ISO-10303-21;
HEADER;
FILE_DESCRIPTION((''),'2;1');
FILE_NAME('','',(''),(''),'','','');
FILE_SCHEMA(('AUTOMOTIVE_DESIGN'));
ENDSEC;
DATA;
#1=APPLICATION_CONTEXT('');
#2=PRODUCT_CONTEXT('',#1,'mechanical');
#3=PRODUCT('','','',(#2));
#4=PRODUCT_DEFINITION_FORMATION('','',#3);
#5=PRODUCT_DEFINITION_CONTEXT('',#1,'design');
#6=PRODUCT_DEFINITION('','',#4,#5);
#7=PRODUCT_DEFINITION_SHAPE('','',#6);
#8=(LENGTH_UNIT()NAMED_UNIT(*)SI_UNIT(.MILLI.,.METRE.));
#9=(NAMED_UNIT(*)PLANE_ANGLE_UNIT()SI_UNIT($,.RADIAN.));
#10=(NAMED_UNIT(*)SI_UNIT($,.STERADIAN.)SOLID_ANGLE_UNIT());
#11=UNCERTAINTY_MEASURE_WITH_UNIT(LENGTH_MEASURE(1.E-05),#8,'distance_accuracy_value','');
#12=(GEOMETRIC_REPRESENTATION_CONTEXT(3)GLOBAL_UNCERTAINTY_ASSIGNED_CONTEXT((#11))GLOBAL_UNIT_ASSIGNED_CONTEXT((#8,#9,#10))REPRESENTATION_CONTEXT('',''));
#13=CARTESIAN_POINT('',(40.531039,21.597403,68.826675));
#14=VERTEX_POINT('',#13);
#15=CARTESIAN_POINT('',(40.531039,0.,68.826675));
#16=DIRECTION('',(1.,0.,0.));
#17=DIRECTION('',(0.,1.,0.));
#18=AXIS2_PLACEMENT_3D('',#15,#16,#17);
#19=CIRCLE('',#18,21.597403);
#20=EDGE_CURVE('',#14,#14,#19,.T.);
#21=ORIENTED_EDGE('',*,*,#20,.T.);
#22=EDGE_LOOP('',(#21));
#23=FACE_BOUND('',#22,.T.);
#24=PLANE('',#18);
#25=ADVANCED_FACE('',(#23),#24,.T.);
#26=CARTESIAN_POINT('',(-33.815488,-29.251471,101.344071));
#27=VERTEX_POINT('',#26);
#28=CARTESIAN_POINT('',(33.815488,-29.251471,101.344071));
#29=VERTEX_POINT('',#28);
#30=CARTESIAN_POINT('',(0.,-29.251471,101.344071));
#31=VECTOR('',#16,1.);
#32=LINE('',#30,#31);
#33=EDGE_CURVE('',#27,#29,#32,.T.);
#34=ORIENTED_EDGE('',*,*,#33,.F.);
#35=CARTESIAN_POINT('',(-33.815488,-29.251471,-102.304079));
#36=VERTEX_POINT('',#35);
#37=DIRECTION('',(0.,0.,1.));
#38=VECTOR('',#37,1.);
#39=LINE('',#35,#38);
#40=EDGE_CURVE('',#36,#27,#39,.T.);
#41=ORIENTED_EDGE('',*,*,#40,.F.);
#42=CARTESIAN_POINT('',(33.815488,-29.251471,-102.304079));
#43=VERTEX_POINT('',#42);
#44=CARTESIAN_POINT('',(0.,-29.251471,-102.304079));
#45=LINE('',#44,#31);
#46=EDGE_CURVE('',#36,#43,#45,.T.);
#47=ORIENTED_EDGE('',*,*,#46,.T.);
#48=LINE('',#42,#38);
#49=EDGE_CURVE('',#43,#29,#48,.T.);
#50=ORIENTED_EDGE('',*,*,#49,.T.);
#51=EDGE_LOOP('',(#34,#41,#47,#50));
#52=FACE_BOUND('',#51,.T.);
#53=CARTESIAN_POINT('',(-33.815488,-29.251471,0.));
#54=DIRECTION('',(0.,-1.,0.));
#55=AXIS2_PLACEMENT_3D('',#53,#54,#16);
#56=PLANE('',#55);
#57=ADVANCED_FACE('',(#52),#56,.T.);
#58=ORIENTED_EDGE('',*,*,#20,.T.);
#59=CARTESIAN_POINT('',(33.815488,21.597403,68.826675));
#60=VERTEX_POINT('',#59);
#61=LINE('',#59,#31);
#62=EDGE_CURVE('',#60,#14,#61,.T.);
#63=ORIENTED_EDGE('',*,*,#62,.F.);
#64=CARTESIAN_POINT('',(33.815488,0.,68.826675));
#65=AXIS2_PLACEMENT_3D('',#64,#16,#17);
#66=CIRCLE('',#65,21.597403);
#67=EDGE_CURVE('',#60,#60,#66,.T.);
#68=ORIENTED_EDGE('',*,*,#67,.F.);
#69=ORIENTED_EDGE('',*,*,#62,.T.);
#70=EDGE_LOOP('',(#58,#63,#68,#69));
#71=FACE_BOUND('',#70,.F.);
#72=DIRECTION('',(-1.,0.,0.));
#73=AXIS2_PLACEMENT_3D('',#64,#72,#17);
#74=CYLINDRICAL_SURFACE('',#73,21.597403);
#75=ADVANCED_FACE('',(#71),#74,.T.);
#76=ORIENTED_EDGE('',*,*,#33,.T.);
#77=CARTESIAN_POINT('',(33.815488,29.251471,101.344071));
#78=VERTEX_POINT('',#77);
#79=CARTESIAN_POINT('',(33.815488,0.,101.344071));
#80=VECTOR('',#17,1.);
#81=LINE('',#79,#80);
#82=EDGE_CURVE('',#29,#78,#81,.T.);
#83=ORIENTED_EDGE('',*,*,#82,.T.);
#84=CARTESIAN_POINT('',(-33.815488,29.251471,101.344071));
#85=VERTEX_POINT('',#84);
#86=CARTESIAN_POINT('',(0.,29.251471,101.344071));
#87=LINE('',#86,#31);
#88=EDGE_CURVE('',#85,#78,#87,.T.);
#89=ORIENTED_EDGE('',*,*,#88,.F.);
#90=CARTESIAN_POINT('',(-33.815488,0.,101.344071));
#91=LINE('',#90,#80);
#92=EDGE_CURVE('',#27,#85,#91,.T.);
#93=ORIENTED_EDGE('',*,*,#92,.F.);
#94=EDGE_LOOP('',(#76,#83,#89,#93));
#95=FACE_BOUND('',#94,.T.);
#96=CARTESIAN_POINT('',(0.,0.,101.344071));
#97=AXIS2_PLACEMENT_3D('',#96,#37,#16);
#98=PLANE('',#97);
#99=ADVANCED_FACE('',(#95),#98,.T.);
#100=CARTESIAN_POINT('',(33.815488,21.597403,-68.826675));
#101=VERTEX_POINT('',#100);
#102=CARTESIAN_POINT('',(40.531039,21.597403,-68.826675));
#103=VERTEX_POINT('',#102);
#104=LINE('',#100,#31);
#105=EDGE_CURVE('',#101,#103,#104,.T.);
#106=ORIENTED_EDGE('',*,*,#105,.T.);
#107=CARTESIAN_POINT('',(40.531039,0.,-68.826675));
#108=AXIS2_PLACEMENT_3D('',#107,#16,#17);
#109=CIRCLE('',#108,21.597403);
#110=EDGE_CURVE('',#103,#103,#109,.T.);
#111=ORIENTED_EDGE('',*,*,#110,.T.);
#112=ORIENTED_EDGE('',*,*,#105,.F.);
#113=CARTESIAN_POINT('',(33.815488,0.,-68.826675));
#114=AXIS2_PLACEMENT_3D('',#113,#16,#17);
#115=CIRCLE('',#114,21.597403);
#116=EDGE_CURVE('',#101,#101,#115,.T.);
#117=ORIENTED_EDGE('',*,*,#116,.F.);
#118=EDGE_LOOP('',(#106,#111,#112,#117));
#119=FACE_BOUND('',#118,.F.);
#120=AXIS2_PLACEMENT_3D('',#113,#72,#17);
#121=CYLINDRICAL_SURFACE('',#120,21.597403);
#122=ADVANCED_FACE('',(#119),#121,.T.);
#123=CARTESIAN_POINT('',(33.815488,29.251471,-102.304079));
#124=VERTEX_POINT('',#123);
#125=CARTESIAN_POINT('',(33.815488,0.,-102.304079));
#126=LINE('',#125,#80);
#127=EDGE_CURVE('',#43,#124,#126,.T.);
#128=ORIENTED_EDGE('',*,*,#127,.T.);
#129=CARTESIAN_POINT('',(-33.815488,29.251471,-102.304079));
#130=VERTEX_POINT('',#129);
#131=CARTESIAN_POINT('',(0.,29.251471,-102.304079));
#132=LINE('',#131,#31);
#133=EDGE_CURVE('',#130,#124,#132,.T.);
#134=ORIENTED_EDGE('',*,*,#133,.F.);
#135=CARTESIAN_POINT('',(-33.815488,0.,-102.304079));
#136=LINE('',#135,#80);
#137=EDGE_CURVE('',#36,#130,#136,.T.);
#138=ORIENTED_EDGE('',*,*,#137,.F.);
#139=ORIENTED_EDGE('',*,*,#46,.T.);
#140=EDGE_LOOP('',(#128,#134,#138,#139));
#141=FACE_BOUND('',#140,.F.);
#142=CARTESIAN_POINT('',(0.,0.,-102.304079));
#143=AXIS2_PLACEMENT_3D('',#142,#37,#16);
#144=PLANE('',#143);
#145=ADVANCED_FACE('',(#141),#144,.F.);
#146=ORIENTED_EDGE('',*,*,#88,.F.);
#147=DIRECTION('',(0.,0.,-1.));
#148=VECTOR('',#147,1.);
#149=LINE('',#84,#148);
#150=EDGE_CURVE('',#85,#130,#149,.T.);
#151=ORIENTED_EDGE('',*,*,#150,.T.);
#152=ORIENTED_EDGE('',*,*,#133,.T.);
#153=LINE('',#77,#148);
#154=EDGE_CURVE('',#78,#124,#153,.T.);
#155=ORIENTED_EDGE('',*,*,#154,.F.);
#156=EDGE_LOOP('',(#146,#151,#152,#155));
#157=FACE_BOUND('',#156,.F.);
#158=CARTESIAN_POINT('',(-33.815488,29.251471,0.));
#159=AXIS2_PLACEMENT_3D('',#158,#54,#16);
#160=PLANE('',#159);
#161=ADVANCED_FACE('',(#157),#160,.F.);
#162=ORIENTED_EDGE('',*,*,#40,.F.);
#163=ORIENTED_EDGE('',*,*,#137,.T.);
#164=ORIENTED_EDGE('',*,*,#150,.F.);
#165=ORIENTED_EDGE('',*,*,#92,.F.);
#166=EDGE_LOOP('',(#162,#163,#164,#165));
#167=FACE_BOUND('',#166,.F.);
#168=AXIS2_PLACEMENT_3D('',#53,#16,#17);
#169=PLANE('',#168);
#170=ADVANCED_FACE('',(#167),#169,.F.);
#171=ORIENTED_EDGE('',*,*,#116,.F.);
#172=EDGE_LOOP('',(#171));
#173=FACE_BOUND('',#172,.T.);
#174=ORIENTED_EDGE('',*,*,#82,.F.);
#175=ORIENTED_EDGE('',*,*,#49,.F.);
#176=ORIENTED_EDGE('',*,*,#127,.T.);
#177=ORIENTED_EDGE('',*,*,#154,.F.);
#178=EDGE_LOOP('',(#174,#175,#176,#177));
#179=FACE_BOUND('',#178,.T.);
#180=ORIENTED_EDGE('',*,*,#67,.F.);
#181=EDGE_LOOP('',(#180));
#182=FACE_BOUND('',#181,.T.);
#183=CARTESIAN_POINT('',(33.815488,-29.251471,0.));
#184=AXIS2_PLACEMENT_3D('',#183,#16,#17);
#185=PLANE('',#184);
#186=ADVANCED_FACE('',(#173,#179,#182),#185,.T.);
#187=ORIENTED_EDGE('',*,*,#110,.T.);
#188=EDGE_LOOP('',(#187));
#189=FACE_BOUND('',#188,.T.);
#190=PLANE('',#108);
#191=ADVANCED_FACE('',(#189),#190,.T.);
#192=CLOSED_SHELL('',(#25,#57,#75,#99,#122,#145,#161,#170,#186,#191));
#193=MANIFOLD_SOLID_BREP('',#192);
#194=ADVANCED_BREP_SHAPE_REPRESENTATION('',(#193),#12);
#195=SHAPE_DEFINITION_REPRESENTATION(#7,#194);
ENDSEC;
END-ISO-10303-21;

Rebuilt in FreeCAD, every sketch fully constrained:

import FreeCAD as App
import Part
import Sketcher


def add_polygon(sketch, points):
    """Adds a closed chain of lines whose ends are joined by coincident constraints."""
    first, n = sketch.GeometryCount, len(points)
    for a, b in zip(points, points[1:] + points[:1]):
        sketch.addGeometry(Part.LineSegment(App.Vector(*a, 0), App.Vector(*b, 0)), False)
    for i in range(n):
        sketch.addConstraint(Sketcher.Constraint("Coincident", first + i, 2, first + (i + 1) % n, 1))

doc = App.newDocument("Part")
body = doc.addObject("PartDesign::Body", "Body")

# Sketch on XY plane
sketch1 = body.newObject("Sketcher::SketchObject", "Sketch")
sketch1.AttachmentSupport = (doc.getObject("XY_Plane"), [""])
sketch1.MapMode = "FlatFace"
add_polygon(sketch1, [(-34, 29), (-34, -29), (34, -29), (34, 29)])  # lines 0-3
sketch1.addConstraint([
    Sketcher.Constraint("Vertical", 0),
    Sketcher.Constraint("Horizontal", 1),
    Sketcher.Constraint("Vertical", 2),
    Sketcher.Constraint("Horizontal", 3),
    Sketcher.Constraint("Symmetric", 0, 2, 2, 2, -1, 1),
    Sketcher.Constraint("DistanceY", 0, 2, 0, 1, 58.502942),
    Sketcher.Constraint("DistanceX", 1, 1, 1, 2, 67.630976),
])
pad1 = body.newObject("PartDesign::Pad", "Pad")
pad1.Profile = sketch1
pad1.Type = "TwoLengths"
pad1.Length = 101.344071
pad1.Length2 = 102.304079

# Sketch on YZ plane
sketch2 = body.newObject("Sketcher::SketchObject", "Sketch001")
sketch2.AttachmentSupport = (doc.getObject("YZ_Plane"), [""])
sketch2.MapMode = "FlatFace"
sketch2.AttachmentOffset = App.Placement(App.Vector(0, 0, 33.815488), App.Rotation())
sketch2.addGeometry([
    Part.Circle(App.Vector(0, 69, 0), App.Vector(0, 0, 1), 22),
    Part.Circle(App.Vector(0, -69, 0), App.Vector(0, 0, 1), 22),
], False)
sketch2.addConstraint([
    Sketcher.Constraint("Equal", 0, 1),
    Sketcher.Constraint("Symmetric", 0, 3, 1, 3, -1, 1),
    Sketcher.Constraint("PointOnObject", 0, 3, -2),
    Sketcher.Constraint("Diameter", 0, 43.194806),
    Sketcher.Constraint("DistanceY", 1, 3, 0, 3, 137.65335),
])
pad2 = body.newObject("PartDesign::Pad", "Pad001")
pad2.Profile = sketch2
pad2.Length = 6.715551

doc.recompute()
